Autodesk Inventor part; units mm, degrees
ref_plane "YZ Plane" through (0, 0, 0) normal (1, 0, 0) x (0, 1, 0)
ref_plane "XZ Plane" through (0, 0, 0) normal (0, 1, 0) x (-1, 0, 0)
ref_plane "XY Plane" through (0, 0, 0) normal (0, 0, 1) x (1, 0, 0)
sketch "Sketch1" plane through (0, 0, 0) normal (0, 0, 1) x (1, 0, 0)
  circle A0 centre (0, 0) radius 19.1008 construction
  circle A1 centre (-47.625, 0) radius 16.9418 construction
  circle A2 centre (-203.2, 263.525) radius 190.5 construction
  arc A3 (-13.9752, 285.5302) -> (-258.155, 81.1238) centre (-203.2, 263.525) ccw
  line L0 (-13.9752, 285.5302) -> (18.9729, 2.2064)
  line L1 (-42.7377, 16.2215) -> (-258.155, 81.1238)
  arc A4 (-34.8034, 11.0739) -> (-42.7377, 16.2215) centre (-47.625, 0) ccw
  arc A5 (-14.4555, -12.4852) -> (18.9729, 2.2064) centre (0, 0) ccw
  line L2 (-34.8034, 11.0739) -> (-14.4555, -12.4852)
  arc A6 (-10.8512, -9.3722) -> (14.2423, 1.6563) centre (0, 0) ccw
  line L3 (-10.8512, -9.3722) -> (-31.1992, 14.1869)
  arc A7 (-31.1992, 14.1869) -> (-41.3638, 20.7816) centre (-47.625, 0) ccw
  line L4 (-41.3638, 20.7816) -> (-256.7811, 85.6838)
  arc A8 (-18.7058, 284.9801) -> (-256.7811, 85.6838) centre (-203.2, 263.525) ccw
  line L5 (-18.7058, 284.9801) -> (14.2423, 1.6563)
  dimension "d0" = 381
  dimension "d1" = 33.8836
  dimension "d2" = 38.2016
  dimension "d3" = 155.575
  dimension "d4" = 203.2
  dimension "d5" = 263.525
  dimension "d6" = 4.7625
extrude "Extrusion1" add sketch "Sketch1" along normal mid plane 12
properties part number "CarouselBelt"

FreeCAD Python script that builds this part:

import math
import FreeCAD as App
import Part
import Sketcher
from FreeCAD import Vector
Q = App.Units.Quantity

doc = App.newDocument("Part")
params = doc.addObject("Spreadsheet::Sheet", "Params")
for row, (alias, value) in enumerate([
    ("sketch1_radius", "7.5 in"),
    ("sketch1_radius2", "0.667 in"),
    ("sketch1_radius3", "0.752 in"),
    ("sketch1_radius4", "7.3125 in"),
    ("pad1_length", "12 mm"),
], start=1):
    params.set(f"A{row}", alias)
    params.set(f"B{row}", "=" + value)
    params.setAlias(f"B{row}", alias)

body = doc.addObject("PartDesign::Body", "Body")

sketch1 = body.newObject("Sketcher::SketchObject", "Sketch")
sketch1.AttachmentSupport = (doc.getObject("XY_Plane"), [""])
sketch1.MapMode = "FlatFace"
sketch1.addGeometry(Part.LineSegment(Vector(18.9729, 2.2064, 0), Vector(-13.9752, 285.5302, 0)), False)
sketch1.addGeometry(Part.ArcOfCircle(Part.Circle(Vector(-203.2, 263.525, 0), Vector(0, 0, 1), 190.50001), math.radians(6.633207), math.radians(253.23316)), False)
sketch1.addGeometry(Part.LineSegment(Vector(-258.155, 81.1238, 0), Vector(-42.7377, 16.2215, 0)), False)
sketch1.addGeometry(Part.ArcOfCircle(Part.Circle(Vector(-47.625, 0, 0), Vector(0, 0, 1), 16.9418), math.radians(40.816876), math.radians(73.233216)), False)
sketch1.addGeometry(Part.LineSegment(Vector(-34.8034, 11.0739, 0), Vector(-14.4555, -12.4852, 0)), False)
sketch1.addGeometry(Part.ArcOfCircle(Part.Circle(Vector(0, 0, 0), Vector(0, 0, 1), 19.1008), math.radians(-139.182863), math.radians(6.633256)), False)
sketch1.addGeometry(Part.ArcOfCircle(Part.Circle(Vector(0, 0, 0), Vector(0, 0, 1), 14.338294), math.radians(-139.182772), math.radians(6.633382)), False)
sketch1.addGeometry(Part.LineSegment(Vector(-10.8512, -9.3722, 0), Vector(-31.1992, 14.1869, 0)), False)
sketch1.addGeometry(Part.ArcOfCircle(Part.Circle(Vector(-47.625, 0, 0), Vector(0, 0, 1), 21.704263), math.radians(40.817045), math.radians(73.233194)), False)
sketch1.addGeometry(Part.LineSegment(Vector(-41.3638, 20.7816, 0), Vector(-256.7811, 85.6838, 0)), False)
sketch1.addGeometry(Part.ArcOfCircle(Part.Circle(Vector(-203.2, 263.525, 0), Vector(0, 0, 1), 185.737533), math.radians(6.633215), math.radians(253.233171)), False)
sketch1.addGeometry(Part.LineSegment(Vector(-18.7058, 284.9801, 0), Vector(14.2423, 1.6563, 0)), False)
sketch1.addConstraint(Sketcher.Constraint("Tangent", 0, 2, 1, 1))
sketch1.addConstraint(Sketcher.Constraint("Tangent", 1, 2, 2, 1))
sketch1.addConstraint(Sketcher.Constraint("Tangent", 2, 2, 3, 2))
sketch1.addConstraint(Sketcher.Constraint("Tangent", 3, 1, 4, 1))
sketch1.addConstraint(Sketcher.Constraint("Tangent", 4, 2, 5, 1))
sketch1.addConstraint(Sketcher.Constraint("Tangent", 5, 2, 0, 1))
sketch1.addConstraint(Sketcher.Constraint("Tangent", 6, 1, 7, 1))
sketch1.addConstraint(Sketcher.Constraint("Tangent", 7, 2, 8, 1))
sketch1.addConstraint(Sketcher.Constraint("Tangent", 8, 2, 9, 1))
sketch1.addConstraint(Sketcher.Constraint("Tangent", 9, 2, 10, 2))
sketch1.addConstraint(Sketcher.Constraint("Tangent", 10, 1, 11, 1))
sketch1.addConstraint(Sketcher.Constraint("Tangent", 11, 2, 6, 2))
sketch1.addConstraint(Sketcher.Constraint("Coincident", 5, 3, -1, 1))
sketch1.addConstraint(Sketcher.Constraint("Coincident", 6, 3, -1, 1))
sketch1.addConstraint(Sketcher.Constraint("Coincident", 8, 3, 3, 3))
sketch1.addConstraint(Sketcher.Constraint("Coincident", 10, 3, 1, 3))
sketch1.addConstraint(Sketcher.Constraint("PointOnObject", 3, 3, -1))
sketch1.addConstraint(Sketcher.Constraint("Parallel", 4, 7))
sketch1.addConstraint(Sketcher.Constraint("Parallel", 2, 9))
sketch1.addConstraint(Sketcher.Constraint("Radius", 1, Q("7.5 in")))
sketch1.addConstraint(Sketcher.Constraint("DistanceX", 1, 3, -1, 1, Q("8 in")))
sketch1.addConstraint(Sketcher.Constraint("Radius", 3, Q("0.667 in")))
sketch1.addConstraint(Sketcher.Constraint("Radius", 5, Q("0.752 in")))
sketch1.addConstraint(Sketcher.Constraint("DistanceY", -1, 1, 1, 3, Q("10.375 in")))
sketch1.addConstraint(Sketcher.Constraint("Radius", 10, Q("7.3125 in")))
sketch1.addConstraint(Sketcher.Constraint("DistanceX", 1, 3, 3, 3, Q("6.125 in")))
sketch1.setExpression("Constraints[19]", "Params.sketch1_radius")
sketch1.setExpression("Constraints[21]", "Params.sketch1_radius2")
sketch1.setExpression("Constraints[22]", "Params.sketch1_radius3")
sketch1.setExpression("Constraints[24]", "Params.sketch1_radius4")
pad1 = body.newObject("PartDesign::Pad", "Pad")
pad1.Profile = sketch1
pad1.setExpression("Length", "Params.pad1_length")
pad1.Midplane = True

doc.recompute()
